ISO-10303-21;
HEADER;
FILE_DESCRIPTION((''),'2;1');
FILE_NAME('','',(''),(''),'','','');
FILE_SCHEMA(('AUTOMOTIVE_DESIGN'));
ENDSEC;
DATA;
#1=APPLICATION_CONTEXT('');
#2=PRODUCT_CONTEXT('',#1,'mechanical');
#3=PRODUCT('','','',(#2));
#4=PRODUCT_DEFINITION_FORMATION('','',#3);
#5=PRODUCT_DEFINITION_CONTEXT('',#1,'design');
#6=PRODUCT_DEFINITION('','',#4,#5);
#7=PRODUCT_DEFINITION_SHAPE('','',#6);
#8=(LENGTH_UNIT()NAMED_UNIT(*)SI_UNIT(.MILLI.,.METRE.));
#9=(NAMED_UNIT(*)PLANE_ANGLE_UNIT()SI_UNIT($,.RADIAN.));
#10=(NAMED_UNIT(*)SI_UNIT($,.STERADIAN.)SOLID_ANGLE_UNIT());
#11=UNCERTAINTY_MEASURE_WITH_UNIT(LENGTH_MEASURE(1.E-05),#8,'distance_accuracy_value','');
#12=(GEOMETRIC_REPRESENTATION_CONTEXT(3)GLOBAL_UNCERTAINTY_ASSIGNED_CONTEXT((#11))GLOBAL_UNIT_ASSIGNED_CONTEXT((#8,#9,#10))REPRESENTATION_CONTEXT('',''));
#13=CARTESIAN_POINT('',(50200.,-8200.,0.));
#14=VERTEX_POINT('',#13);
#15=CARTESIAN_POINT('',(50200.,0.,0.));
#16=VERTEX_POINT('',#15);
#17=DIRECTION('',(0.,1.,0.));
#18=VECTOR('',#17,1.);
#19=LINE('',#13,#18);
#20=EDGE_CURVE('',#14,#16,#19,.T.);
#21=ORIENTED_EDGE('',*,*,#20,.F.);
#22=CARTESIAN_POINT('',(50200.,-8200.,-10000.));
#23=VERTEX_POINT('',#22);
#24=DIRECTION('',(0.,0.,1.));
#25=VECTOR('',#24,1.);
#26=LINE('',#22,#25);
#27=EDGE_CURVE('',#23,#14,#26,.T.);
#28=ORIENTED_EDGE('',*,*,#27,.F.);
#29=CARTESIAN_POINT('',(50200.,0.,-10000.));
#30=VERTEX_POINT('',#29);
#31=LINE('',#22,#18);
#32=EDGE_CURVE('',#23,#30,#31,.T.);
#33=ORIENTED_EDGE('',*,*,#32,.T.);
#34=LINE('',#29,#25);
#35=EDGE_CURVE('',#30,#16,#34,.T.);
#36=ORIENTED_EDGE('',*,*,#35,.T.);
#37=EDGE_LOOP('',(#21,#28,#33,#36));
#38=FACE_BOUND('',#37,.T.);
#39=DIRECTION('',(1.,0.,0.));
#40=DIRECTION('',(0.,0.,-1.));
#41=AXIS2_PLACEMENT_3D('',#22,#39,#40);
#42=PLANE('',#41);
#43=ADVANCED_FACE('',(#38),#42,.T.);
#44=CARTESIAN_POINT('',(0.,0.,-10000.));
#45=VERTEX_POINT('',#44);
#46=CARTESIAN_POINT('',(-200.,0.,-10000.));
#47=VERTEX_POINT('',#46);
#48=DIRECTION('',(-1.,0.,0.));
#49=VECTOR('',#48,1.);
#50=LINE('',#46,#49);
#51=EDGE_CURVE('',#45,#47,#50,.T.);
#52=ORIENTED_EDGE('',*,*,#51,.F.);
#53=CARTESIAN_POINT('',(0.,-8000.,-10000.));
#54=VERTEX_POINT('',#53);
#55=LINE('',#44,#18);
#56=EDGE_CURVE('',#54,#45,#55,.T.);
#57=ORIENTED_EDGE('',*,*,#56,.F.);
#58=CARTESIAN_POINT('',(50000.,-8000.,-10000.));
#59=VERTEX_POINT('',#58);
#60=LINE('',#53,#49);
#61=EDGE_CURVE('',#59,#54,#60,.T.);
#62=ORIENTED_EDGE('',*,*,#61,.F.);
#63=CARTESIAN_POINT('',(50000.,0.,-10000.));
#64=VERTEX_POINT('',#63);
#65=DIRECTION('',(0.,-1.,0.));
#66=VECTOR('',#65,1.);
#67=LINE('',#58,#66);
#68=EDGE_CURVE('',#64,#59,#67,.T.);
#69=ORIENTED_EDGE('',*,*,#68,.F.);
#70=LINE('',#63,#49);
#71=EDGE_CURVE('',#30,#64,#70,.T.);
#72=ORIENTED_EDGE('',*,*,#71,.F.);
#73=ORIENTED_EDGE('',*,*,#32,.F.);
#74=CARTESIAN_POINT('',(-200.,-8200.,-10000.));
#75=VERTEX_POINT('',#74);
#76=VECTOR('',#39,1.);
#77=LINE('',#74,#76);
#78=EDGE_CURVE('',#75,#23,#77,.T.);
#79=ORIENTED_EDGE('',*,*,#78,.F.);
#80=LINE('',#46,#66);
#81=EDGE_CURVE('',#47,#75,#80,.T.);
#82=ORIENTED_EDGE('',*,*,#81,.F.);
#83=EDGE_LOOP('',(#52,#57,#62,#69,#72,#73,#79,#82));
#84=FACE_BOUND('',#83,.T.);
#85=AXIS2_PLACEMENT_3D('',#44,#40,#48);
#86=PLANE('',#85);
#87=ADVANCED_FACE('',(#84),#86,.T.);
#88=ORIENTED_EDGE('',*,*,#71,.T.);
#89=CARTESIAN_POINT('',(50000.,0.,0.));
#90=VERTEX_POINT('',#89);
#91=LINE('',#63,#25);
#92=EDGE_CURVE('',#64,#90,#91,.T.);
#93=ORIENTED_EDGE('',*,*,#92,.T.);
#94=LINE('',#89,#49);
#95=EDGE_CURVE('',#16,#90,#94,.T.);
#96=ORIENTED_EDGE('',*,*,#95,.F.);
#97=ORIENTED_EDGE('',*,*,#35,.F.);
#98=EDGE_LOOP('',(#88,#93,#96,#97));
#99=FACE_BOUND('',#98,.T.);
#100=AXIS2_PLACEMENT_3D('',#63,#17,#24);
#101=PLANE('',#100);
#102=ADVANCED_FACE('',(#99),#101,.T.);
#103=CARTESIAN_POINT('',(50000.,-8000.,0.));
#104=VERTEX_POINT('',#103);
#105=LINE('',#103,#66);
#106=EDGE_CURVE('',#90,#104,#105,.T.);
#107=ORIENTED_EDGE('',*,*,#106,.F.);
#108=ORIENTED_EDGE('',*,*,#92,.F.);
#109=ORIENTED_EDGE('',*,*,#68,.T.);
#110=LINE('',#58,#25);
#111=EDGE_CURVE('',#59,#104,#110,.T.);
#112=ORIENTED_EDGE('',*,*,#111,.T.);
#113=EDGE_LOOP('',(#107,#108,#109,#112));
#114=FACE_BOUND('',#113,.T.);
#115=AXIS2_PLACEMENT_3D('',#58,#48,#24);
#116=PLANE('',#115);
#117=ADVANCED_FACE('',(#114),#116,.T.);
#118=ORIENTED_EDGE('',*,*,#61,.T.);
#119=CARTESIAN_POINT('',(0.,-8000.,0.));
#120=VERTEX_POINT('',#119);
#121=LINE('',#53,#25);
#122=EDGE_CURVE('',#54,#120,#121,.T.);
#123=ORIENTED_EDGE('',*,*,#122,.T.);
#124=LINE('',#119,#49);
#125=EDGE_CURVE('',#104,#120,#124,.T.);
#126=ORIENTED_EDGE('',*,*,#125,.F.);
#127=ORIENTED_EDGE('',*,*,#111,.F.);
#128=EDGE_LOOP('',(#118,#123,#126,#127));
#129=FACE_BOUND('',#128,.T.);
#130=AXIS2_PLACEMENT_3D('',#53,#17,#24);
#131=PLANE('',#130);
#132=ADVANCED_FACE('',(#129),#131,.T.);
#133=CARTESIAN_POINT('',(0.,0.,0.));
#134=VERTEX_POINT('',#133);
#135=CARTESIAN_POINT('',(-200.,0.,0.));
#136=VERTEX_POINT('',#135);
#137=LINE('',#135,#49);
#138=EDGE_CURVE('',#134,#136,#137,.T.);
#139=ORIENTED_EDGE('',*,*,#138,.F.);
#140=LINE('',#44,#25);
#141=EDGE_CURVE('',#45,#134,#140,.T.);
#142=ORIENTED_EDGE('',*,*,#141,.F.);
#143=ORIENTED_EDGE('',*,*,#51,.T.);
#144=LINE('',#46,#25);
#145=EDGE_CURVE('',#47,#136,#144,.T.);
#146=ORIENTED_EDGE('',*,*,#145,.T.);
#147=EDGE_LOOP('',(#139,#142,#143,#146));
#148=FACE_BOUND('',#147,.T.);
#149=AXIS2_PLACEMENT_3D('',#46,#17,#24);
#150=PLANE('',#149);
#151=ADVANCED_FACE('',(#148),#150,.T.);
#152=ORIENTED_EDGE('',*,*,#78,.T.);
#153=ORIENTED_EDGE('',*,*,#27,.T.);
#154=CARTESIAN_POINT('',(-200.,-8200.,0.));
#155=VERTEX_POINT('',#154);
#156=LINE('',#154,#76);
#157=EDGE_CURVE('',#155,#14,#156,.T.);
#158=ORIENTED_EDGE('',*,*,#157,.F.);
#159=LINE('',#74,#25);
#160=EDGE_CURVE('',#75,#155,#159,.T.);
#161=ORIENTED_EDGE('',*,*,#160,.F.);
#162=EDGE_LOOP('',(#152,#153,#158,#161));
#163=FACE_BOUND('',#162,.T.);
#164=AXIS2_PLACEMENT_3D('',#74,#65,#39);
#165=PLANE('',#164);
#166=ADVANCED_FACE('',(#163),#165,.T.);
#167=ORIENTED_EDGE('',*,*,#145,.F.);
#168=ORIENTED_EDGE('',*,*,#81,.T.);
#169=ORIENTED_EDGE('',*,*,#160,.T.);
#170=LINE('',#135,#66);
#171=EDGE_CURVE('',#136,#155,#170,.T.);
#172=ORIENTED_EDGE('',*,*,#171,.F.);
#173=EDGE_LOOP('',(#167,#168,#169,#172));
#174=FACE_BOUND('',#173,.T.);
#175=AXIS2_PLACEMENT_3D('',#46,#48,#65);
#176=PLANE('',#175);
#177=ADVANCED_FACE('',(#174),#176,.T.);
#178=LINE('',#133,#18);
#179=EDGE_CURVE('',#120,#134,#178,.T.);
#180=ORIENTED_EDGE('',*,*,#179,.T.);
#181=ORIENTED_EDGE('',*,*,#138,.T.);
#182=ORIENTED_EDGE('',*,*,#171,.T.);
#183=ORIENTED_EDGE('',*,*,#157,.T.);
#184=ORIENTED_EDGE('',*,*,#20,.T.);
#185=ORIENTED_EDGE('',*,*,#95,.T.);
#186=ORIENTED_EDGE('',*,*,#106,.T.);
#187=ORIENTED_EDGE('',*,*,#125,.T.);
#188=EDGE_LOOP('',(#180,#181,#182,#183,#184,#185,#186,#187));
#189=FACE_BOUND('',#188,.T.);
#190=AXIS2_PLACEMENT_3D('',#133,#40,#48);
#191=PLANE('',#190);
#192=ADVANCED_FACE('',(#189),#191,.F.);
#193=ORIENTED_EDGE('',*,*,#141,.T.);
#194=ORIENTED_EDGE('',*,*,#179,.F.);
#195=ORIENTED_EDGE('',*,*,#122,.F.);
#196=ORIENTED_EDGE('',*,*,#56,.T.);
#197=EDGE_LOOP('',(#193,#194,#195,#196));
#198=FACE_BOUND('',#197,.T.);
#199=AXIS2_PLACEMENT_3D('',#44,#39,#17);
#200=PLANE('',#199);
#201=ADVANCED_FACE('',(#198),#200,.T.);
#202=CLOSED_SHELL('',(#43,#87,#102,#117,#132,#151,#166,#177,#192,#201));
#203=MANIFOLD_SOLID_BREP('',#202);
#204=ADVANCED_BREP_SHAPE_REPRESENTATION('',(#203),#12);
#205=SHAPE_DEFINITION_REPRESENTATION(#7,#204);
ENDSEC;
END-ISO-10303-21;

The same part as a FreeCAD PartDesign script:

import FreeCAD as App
import Part
import Sketcher
from FreeCAD import Vector

doc = App.newDocument("Part")
body = doc.addObject("PartDesign::Body", "Body")

sketch1 = body.newObject("Sketcher::SketchObject", "Sketch")
sketch1.AttachmentSupport = (doc.getObject("XY_Plane"), [""])
sketch1.MapMode = "FlatFace"
sketch1.addGeometry([
    Part.LineSegment(Vector(0, -8000, 0), Vector(0, 0, 0)),
    Part.LineSegment(Vector(0, 0, 0), Vector(-200, 0, 0)),
    Part.LineSegment(Vector(-200, 0, 0), Vector(-200, -8200, 0)),
    Part.LineSegment(Vector(-200, -8200, 0), Vector(50200, -8200, 0)),
    Part.LineSegment(Vector(50200, -8200, 0), Vector(50200, 0, 0)),
    Part.LineSegment(Vector(50200, 0, 0), Vector(50000, 0, 0)),
    Part.LineSegment(Vector(50000, 0, 0), Vector(50000, -8000, 0)),
    Part.LineSegment(Vector(50000, -8000, 0), Vector(0, -8000, 0)),
], False)
sketch1.addConstraint([
    Sketcher.Constraint("Coincident", 0, 2, 1, 1),
    Sketcher.Constraint("Coincident", 1, 2, 2, 1),
    Sketcher.Constraint("Coincident", 2, 2, 3, 1),
    Sketcher.Constraint("Coincident", 3, 2, 4, 1),
    Sketcher.Constraint("Coincident", 4, 2, 5, 1),
    Sketcher.Constraint("Coincident", 5, 2, 6, 1),
    Sketcher.Constraint("Coincident", 6, 2, 7, 1),
    Sketcher.Constraint("Coincident", 7, 2, 0, 1),
    Sketcher.Constraint("Vertical", 0),
    Sketcher.Constraint("Horizontal", 1),
    Sketcher.Constraint("Vertical", 2),
    Sketcher.Constraint("Horizontal", 3),
    Sketcher.Constraint("Vertical", 4),
    Sketcher.Constraint("Horizontal", 5),
    Sketcher.Constraint("Vertical", 6),
    Sketcher.Constraint("Horizontal", 7),
    Sketcher.Constraint("Coincident", 0, 2, -1, 1),
    Sketcher.Constraint("PointOnObject", 4, 2, -1),
    Sketcher.Constraint("Equal", 1, 5),
    Sketcher.Constraint("DistanceX", 1, 2, 1, 1, 200.0),
    Sketcher.Constraint("DistanceX", 3, 1, 3, 2, 50400.0),
    Sketcher.Constraint("DistanceY", 0, 1, 0, 2, 8000.0),
    Sketcher.Constraint("DistanceY", 2, 2, 2, 1, 8200.0),
])
pad1 = body.newObject("PartDesign::Pad", "Pad")
pad1.Profile = sketch1
pad1.Length = 10000
pad1.Reversed = True

doc.recompute()
